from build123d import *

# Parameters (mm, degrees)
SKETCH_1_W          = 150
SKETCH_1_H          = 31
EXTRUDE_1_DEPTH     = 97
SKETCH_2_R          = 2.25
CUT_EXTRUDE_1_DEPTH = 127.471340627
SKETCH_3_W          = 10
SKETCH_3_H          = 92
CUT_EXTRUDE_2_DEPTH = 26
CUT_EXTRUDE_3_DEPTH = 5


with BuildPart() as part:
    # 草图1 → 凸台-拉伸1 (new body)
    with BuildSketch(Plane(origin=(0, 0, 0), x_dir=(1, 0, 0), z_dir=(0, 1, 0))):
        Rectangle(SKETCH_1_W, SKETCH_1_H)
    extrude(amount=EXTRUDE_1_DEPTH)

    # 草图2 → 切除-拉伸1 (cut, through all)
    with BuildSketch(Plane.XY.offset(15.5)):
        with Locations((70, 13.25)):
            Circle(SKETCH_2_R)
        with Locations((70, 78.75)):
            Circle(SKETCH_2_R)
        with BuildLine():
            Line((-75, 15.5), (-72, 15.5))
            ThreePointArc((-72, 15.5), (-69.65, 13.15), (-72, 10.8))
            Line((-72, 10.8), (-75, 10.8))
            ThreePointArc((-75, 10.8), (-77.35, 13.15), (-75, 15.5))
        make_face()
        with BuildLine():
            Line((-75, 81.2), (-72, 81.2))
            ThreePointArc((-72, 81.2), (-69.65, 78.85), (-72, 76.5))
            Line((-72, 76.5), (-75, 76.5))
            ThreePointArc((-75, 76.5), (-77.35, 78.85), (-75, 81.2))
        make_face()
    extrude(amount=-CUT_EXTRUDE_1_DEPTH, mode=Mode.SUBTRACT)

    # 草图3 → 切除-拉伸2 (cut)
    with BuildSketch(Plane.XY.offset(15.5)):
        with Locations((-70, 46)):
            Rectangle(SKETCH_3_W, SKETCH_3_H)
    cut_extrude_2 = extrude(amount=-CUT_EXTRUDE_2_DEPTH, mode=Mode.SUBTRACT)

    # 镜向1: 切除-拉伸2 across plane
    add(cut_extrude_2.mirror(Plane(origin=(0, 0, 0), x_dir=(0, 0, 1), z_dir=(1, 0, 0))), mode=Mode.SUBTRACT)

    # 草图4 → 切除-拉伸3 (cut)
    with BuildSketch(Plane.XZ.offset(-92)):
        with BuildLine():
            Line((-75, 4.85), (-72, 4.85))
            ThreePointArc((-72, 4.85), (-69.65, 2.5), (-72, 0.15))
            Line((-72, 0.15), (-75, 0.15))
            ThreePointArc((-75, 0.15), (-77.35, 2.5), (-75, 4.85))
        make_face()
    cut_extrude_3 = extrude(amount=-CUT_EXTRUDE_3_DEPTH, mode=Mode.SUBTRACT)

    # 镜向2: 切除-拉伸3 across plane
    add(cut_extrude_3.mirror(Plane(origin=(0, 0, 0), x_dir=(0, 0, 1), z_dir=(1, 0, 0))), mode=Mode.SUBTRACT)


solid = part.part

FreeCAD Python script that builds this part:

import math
import FreeCAD as App
import Part
import Sketcher
from FreeCAD import Vector
Q = App.Units.Quantity


def add_polygon(sketch, points):
    """Adds a closed chain of lines whose ends are joined by coincident constraints."""
    first, n = sketch.GeometryCount, len(points)
    for a, b in zip(points, points[1:] + points[:1]):
        sketch.addGeometry(Part.LineSegment(App.Vector(*a, 0), App.Vector(*b, 0)), False)
    for i in range(n):
        sketch.addConstraint(Sketcher.Constraint("Coincident", first + i, 2, first + (i + 1) % n, 1))

doc = App.newDocument("Part")
body = doc.addObject("PartDesign::Body", "Body")

# Sketch on XZ plane
sketch1 = doc.addObject("Sketcher::SketchObject", "Sketch")
body.addObject(sketch1)
sketch1.AttachmentSupport = (doc.XZ_Plane, [""])
sketch1.MapMode = "FlatFace"
add_polygon(sketch1, [(-75, -16), (-75, 16), (75, 16), (75, -16)])  # lines 0-3
sketch1.addConstraint([
    Sketcher.Constraint("Vertical", 0),
    Sketcher.Constraint("Horizontal", 1),
    Sketcher.Constraint("Vertical", 2),
    Sketcher.Constraint("Horizontal", 3),
    Sketcher.Constraint("Symmetric", 0, 2, 2, 2, -1, 1),
    Sketcher.Constraint("DistanceX", 1, 1, 1, 2, Q("150 mm")),
    Sketcher.Constraint("DistanceY", 0, 1, 0, 2, Q("31 mm")),
])
pad1 = doc.addObject("PartDesign::Pad", "Pad")
body.addObject(pad1)
pad1.Profile = sketch1
pad1.Length = 97
pad1.Reversed = True

# Sketch on XY plane
sketch2 = doc.addObject("Sketcher::SketchObject", "Sketch001")
body.addObject(sketch2)
sketch2.AttachmentSupport = (doc.XY_Plane, [""])
sketch2.MapMode = "FlatFace"
sketch2.AttachmentOffset = App.Placement(Vector(0, 0, 15.5), App.Rotation())
sketch2.addGeometry([
    Part.Circle(Vector(70, 13.2, 0), Vector(0, 0, 1), 2.2),  # 0
    Part.Circle(Vector(70, 78.8, 0), Vector(0, 0, 1), 2.2),  # 1
    Part.LineSegment(Vector(-72, 15.5, 0), Vector(-75, 15.5, 0)),  # 2
    Part.ArcOfCircle(Part.Circle(Vector(-75, 13.2, 0), Vector(0, 0, 1), 2.4), math.radians(90), math.radians(270)),  # 3
    Part.LineSegment(Vector(-75, 10.8, 0), Vector(-72, 10.8, 0)),  # 4
    Part.ArcOfCircle(Part.Circle(Vector(-72, 13.2, 0), Vector(0, 0, 1), 2.4), math.radians(-90), math.radians(90)),  # 5
    Part.LineSegment(Vector(-72, 81.2, 0), Vector(-75, 81.2, 0)),  # 6
    Part.ArcOfCircle(Part.Circle(Vector(-75, 78.8, 0), Vector(0, 0, 1), 2.4), math.radians(90), math.radians(270)),  # 7
    Part.LineSegment(Vector(-75, 76.5, 0), Vector(-72, 76.5, 0)),  # 8
    Part.ArcOfCircle(Part.Circle(Vector(-72, 78.8, 0), Vector(0, 0, 1), 2.4), math.radians(-90), math.radians(90)),  # 9
], False)
sketch2.addConstraint([
    Sketcher.Constraint("Tangent", 2, 2, 3, 1),
    Sketcher.Constraint("Tangent", 3, 2, 4, 1),
    Sketcher.Constraint("Tangent", 4, 2, 5, 1),
    Sketcher.Constraint("Tangent", 5, 2, 2, 1),
    Sketcher.Constraint("Tangent", 6, 2, 7, 1),
    Sketcher.Constraint("Tangent", 7, 2, 8, 1),
    Sketcher.Constraint("Tangent", 8, 2, 9, 1),
    Sketcher.Constraint("Tangent", 9, 2, 6, 1),
    Sketcher.Constraint("Horizontal", 2),
    Sketcher.Constraint("Horizontal", 4),
    Sketcher.Constraint("Horizontal", 6),
    Sketcher.Constraint("Horizontal", 8),
    Sketcher.Constraint("Equal", 0, 1),
    Sketcher.Constraint("Equal", 5, 7),
    Sketcher.Constraint("Vertical", 0, 3, 1, 3),
    Sketcher.Constraint("Vertical", 3, 3, 7, 3),
    Sketcher.Constraint("Vertical", 5, 3, 9, 3),
    Sketcher.Constraint("Diameter", 0, Q("4.5 mm")),
    Sketcher.Constraint("DistanceX", 2, 2, 2, 1, Q("3 mm")),
    Sketcher.Constraint("Radius", 3, Q("2.35 mm")),
    Sketcher.Constraint("DistanceX", -1, 1, 0, 3, Q("70 mm")),
    Sketcher.Constraint("DistanceX", 3, 3, -1, 1, Q("75 mm")),
    Sketcher.Constraint("DistanceY", 2, 2, 7, 2, Q("61 mm")),
    Sketcher.Constraint("DistanceY", -1, 1, 2, 2, Q("15.5 mm")),
    Sketcher.Constraint("DistanceY", 0, 3, 1, 3, Q("65.5 mm")),
    Sketcher.Constraint("DistanceY", 3, 3, 0, 3, Q("0.1 mm")),
])
pocket1 = doc.addObject("PartDesign::Pocket", "Pocket")
body.addObject(pocket1)
pocket1.Profile = sketch2
pocket1.Type = "ThroughAll"

# Sketch on XY plane
sketch3 = doc.addObject("Sketcher::SketchObject", "Sketch002")
body.addObject(sketch3)
sketch3.AttachmentSupport = (doc.XY_Plane, [""])
sketch3.MapMode = "FlatFace"
sketch3.AttachmentOffset = App.Placement(Vector(0, 0, 15.5), App.Rotation())
add_polygon(sketch3, [(-75, 92), (-75, 0), (-65, 0), (-65, 92)])  # lines 0-3
sketch3.addConstraint([
    Sketcher.Constraint("Vertical", 0),
    Sketcher.Constraint("Horizontal", 1),
    Sketcher.Constraint("Vertical", 2),
    Sketcher.Constraint("Horizontal", 3),
    Sketcher.Constraint("PointOnObject", 0, 2, -1),
    Sketcher.Constraint("DistanceX", 1, 1, 1, 2, Q("10 mm")),
    Sketcher.Constraint("DistanceY", 0, 2, 0, 1, Q("92 mm")),
    Sketcher.Constraint("DistanceX", 0, 2, -1, 1, Q("75 mm")),
])
pocket2 = doc.addObject("PartDesign::Pocket", "Pocket001")
body.addObject(pocket2)
pocket2.Profile = sketch3
pocket2.Length = 26
doc.recompute()

mirrored = doc.addObject("PartDesign::Mirrored", "Mirrored")
body.addObject(mirrored)
mirrored.Originals = [pocket2]
mirrored.MirrorPlane = (doc.YZ_Plane, [""])
body.Tip = mirrored

# Sketch on XZ plane
sketch4 = doc.addObject("Sketcher::SketchObject", "Sketch003")
body.addObject(sketch4)
sketch4.AttachmentSupport = (doc.XZ_Plane, [""])
sketch4.MapMode = "FlatFace"
sketch4.AttachmentOffset = App.Placement(Vector(0, 0, -92), App.Rotation())
sketch4.addGeometry([
    Part.LineSegment(Vector(-72, 4.8, 0), Vector(-75, 4.8, 0)),
    Part.ArcOfCircle(Part.Circle(Vector(-75, 2.5, 0), Vector(0, 0, 1), 2.4), math.radians(90), math.radians(270)),
    Part.LineSegment(Vector(-75, 0.1, 0), Vector(-72, 0.1, 0)),
    Part.ArcOfCircle(Part.Circle(Vector(-72, 2.5, 0), Vector(0, 0, 1), 2.4), math.radians(-90), math.radians(90)),
], False)
sketch4.addConstraint([
    Sketcher.Constraint("Tangent", 0, 2, 1, 1),
    Sketcher.Constraint("Tangent", 1, 2, 2, 1),
    Sketcher.Constraint("Tangent", 2, 2, 3, 1),
    Sketcher.Constraint("Tangent", 3, 2, 0, 1),
    Sketcher.Constraint("Horizontal", 0),
    Sketcher.Constraint("Horizontal", 2),
    Sketcher.Constraint("DistanceX", 0, 2, 0, 1, Q("3 mm")),
    Sketcher.Constraint("Radius", 1, Q("2.35 mm")),
    Sketcher.Constraint("DistanceX", 1, 3, -1, 1, Q("75 mm")),
    Sketcher.Constraint("DistanceY", -1, 1, 1, 3, Q("2.5 mm")),
])
pocket3 = doc.addObject("PartDesign::Pocket", "Pocket002")
body.addObject(pocket3)
pocket3.Profile = sketch4
pocket3.Length = 5
doc.recompute()

mirrored2 = doc.addObject("PartDesign::Mirrored", "Mirrored001")
body.addObject(mirrored2)
mirrored2.Originals = [pocket3]
mirrored2.MirrorPlane = (doc.YZ_Plane, [""])
body.Tip = mirrored2

doc.recompute()
